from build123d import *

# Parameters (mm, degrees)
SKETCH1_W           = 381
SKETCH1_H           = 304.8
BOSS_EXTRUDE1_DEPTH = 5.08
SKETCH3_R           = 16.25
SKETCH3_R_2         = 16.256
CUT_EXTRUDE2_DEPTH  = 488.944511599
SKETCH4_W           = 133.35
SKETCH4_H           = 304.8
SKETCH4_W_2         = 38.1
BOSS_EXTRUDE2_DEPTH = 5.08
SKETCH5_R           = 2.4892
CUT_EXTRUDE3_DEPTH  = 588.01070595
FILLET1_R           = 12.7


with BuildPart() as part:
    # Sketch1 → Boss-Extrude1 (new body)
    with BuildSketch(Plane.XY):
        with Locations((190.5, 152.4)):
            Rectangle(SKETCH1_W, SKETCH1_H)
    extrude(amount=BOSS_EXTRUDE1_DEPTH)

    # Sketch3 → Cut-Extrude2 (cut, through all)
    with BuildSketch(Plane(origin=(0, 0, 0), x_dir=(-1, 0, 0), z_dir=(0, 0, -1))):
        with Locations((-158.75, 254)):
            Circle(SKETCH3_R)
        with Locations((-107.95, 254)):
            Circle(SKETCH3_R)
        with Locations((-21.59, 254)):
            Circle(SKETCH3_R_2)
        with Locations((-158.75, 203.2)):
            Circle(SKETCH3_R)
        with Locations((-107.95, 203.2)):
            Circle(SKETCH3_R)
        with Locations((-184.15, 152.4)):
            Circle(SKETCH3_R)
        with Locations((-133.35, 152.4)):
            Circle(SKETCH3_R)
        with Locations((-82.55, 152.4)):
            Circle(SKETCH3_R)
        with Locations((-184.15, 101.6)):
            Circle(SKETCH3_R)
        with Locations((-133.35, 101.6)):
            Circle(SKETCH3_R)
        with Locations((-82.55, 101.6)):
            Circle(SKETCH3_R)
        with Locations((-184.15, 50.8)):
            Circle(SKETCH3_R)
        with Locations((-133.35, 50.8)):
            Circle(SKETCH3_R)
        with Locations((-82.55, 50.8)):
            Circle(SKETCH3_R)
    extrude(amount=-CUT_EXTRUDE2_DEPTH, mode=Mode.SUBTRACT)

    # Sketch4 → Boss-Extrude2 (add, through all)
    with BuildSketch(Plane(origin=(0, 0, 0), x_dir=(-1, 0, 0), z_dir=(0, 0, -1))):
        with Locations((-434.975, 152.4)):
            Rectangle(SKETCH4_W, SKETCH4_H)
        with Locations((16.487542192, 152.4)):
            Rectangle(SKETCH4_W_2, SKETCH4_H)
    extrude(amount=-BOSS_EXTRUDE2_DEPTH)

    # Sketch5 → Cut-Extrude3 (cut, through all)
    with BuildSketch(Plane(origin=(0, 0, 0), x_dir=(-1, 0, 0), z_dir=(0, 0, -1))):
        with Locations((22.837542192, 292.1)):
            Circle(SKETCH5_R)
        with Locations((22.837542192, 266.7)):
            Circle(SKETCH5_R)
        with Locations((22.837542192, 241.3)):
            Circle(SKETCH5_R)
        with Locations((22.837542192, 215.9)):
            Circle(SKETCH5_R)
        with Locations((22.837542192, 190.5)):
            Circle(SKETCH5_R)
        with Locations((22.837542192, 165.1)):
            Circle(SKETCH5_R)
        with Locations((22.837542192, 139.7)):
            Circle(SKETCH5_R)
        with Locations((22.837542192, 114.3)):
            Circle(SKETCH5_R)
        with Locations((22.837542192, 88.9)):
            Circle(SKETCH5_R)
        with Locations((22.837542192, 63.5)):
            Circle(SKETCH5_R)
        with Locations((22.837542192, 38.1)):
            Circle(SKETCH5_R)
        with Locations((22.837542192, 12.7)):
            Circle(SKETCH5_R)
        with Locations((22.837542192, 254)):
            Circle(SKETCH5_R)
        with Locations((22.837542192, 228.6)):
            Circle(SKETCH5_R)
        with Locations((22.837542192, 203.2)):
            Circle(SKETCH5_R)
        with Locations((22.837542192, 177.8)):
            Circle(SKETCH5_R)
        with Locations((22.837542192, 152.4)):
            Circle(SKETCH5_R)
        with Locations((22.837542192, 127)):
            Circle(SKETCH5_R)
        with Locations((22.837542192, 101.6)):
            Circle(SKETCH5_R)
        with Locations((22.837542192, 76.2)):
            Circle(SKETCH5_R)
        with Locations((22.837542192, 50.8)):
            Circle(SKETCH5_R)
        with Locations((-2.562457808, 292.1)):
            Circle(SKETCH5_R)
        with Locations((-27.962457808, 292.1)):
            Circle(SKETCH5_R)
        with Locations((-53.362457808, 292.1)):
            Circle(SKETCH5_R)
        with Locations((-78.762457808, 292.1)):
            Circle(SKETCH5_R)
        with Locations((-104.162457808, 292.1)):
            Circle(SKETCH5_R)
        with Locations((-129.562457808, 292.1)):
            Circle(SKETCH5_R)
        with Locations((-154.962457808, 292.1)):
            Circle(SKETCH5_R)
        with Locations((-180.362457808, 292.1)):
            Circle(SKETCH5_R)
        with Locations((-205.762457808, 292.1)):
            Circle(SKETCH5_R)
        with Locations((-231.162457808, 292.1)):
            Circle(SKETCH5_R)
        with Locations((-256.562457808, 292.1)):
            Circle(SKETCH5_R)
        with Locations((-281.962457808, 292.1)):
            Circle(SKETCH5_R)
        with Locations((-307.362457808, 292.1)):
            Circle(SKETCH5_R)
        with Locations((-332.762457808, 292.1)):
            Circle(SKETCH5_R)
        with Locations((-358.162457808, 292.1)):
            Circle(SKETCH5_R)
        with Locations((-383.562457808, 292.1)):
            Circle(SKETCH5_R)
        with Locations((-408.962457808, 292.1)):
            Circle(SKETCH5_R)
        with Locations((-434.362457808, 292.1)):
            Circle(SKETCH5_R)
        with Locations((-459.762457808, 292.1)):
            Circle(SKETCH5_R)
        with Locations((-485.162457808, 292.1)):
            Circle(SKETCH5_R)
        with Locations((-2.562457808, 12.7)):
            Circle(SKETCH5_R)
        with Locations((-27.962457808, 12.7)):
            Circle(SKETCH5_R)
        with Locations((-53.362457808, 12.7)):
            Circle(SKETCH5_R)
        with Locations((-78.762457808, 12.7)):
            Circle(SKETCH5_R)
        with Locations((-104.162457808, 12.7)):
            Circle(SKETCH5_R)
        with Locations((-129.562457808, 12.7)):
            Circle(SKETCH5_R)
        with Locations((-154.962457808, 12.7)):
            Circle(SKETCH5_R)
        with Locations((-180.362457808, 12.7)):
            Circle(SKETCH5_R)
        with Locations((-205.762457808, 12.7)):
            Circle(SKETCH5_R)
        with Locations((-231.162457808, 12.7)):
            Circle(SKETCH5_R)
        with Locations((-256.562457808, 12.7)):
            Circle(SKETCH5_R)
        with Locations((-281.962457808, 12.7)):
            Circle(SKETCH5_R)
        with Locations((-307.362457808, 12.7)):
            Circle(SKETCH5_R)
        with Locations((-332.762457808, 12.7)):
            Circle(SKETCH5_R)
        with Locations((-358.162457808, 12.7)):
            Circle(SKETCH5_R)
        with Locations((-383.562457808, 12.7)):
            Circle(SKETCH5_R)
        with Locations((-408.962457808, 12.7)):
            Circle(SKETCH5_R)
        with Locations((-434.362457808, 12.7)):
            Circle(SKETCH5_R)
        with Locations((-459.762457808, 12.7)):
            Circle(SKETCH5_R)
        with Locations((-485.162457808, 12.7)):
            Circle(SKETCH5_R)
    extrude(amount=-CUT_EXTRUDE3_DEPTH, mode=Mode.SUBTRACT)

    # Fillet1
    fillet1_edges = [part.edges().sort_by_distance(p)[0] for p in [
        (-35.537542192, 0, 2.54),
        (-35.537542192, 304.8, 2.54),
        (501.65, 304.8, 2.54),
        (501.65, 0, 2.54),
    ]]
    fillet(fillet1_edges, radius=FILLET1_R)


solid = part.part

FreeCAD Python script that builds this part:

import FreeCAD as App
import Part
import Sketcher

V = App.Vector
Q = App.Units.Quantity


def edges_at(feature, points):
    """Names of the edges that pass closest to the given points."""
    edges = feature.Shape.Edges
    near = lambda p: min(range(len(edges)), key=lambda i: edges[i].distToShape(Part.Vertex(*p))[0])
    return sorted({f"Edge{near(p) + 1}" for p in points})

doc = App.newDocument("Part")
body = doc.addObject("PartDesign::Body", "Body")

sketch1 = body.newObject("Sketcher::SketchObject", "Sketch")
sketch1.AttachmentSupport = (doc.getObject("XY_Plane"), [""])
sketch1.MapMode = "FlatFace"
sketch1.addGeometry([
    Part.LineSegment(V(0, 304.8, 0), V(0, 0, 0)),
    Part.LineSegment(V(0, 0, 0), V(381, 0, 0)),
    Part.LineSegment(V(381, 0, 0), V(381, 304.8, 0)),
    Part.LineSegment(V(381, 304.8, 0), V(0, 304.8, 0)),
], False)
sketch1.addConstraint([
    Sketcher.Constraint("Coincident", 0, 2, 1, 1),
    Sketcher.Constraint("Coincident", 1, 2, 2, 1),
    Sketcher.Constraint("Coincident", 2, 2, 3, 1),
    Sketcher.Constraint("Coincident", 3, 2, 0, 1),
    Sketcher.Constraint("Vertical", 0),
    Sketcher.Constraint("Horizontal", 1),
    Sketcher.Constraint("Vertical", 2),
    Sketcher.Constraint("Horizontal", 3),
    Sketcher.Constraint("Coincident", 0, 2, -1, 1),
    Sketcher.Constraint("DistanceX", 1, 1, 1, 2, Q("15 in")),
    Sketcher.Constraint("DistanceY", 0, 2, 0, 1, Q("12 in")),
])
pad1 = body.newObject("PartDesign::Pad", "Pad")
pad1.Profile = sketch1
pad1.Length = Q("0.2 in")

sketch2 = body.newObject("Sketcher::SketchObject", "Sketch001")
sketch2.AttachmentSupport = (doc.getObject("XY_Plane"), [""])
sketch2.MapMode = "FlatFace"
sketch2.addGeometry([
    Part.Circle(V(158.75, 254, 0), V(0, 0, 1), 16.25),
    Part.Circle(V(107.95, 254, 0), V(0, 0, 1), 16.25),
    Part.Circle(V(21.59, 254, 0), V(0, 0, 1), 16.256),
    Part.Circle(V(158.75, 203.2, 0), V(0, 0, 1), 16.25),
    Part.Circle(V(107.95, 203.2, 0), V(0, 0, 1), 16.25),
    Part.Circle(V(184.15, 152.4, 0), V(0, 0, 1), 16.25),
    Part.Circle(V(133.35, 152.4, 0), V(0, 0, 1), 16.25),
    Part.Circle(V(82.55, 152.4, 0), V(0, 0, 1), 16.25),
    Part.Circle(V(184.15, 101.6, 0), V(0, 0, 1), 16.25),
    Part.Circle(V(133.35, 101.6, 0), V(0, 0, 1), 16.25),
    Part.Circle(V(82.55, 101.6, 0), V(0, 0, 1), 16.25),
    Part.Circle(V(184.15, 50.8, 0), V(0, 0, 1), 16.25),
    Part.Circle(V(133.35, 50.8, 0), V(0, 0, 1), 16.25),
    Part.Circle(V(82.55, 50.8, 0), V(0, 0, 1), 16.25),
], False)
sketch2.addConstraint([
    Sketcher.Constraint("Equal", 0, 1),
    Sketcher.Constraint("Equal", 1, 3),
    Sketcher.Constraint("Equal", 3, 4),
    Sketcher.Constraint("Equal", 4, 5),
    Sketcher.Constraint("Equal", 5, 6),
    Sketcher.Constraint("Equal", 6, 7),
    Sketcher.Constraint("Equal", 7, 8),
    Sketcher.Constraint("Equal", 8, 9),
    Sketcher.Constraint("Equal", 9, 10),
    Sketcher.Constraint("Equal", 10, 11),
    Sketcher.Constraint("Equal", 11, 12),
    Sketcher.Constraint("Equal", 12, 13),
    Sketcher.Constraint("Horizontal", 0, 3, 1, 3),
    Sketcher.Constraint("Horizontal", 1, 3, 2, 3),
    Sketcher.Constraint("Horizontal", 3, 3, 4, 3),
    Sketcher.Constraint("Horizontal", 5, 3, 6, 3),
    Sketcher.Constraint("Horizontal", 6, 3, 7, 3),
    Sketcher.Constraint("Horizontal", 8, 3, 9, 3),
    Sketcher.Constraint("Horizontal", 9, 3, 10, 3),
    Sketcher.Constraint("Horizontal", 11, 3, 12, 3),
    Sketcher.Constraint("Horizontal", 12, 3, 13, 3),
    Sketcher.Constraint("Vertical", 0, 3, 3, 3),
    Sketcher.Constraint("Vertical", 1, 3, 4, 3),
    Sketcher.Constraint("Vertical", 5, 3, 8, 3),
    Sketcher.Constraint("Vertical", 6, 3, 9, 3),
    Sketcher.Constraint("Vertical", 7, 3, 10, 3),
    Sketcher.Constraint("Vertical", 8, 3, 11, 3),
    Sketcher.Constraint("Vertical", 9, 3, 12, 3),
    Sketcher.Constraint("Vertical", 10, 3, 13, 3),
    Sketcher.Constraint("Diameter", 2, Q("1.28 in")),
    Sketcher.Constraint("DistanceY", -1, 1, 0, 3, Q("10 in")),
    Sketcher.Constraint("DistanceY", -1, 1, 3, 3, Q("8 in")),
    Sketcher.Constraint("DistanceY", -1, 1, 5, 3, Q("6 in")),
    Sketcher.Constraint("DistanceY", -1, 1, 8, 3, Q("4 in")),
    Sketcher.Constraint("DistanceY", -1, 1, 11, 3, Q("2 in")),
    Sketcher.Constraint("DistanceX", 1, 3, 0, 3, Q("2 in")),
    Sketcher.Constraint("DistanceX", 3, 3, 5, 3, Q("1 in")),
    Sketcher.Constraint("DistanceX", 6, 3, 5, 3, Q("2 in")),
    Sketcher.Constraint("DistanceX", 7, 3, 6, 3, Q("2 in")),
    Sketcher.Constraint("DistanceX", 2, 3, 1, 3, Q("3.4 in")),
    Sketcher.Constraint("Diameter", 0, Q("32.5 mm")),
    Sketcher.Constraint("DistanceX", -1, 1, 0, 3, Q("6.25 in")),
])
pocket1 = body.newObject("PartDesign::Pocket", "Pocket")
pocket1.Profile = sketch2
pocket1.Type = "ThroughAll"
pocket1.Reversed = True

sketch3 = body.newObject("Sketcher::SketchObject", "Sketch002")
sketch3.AttachmentSupport = (doc.getObject("XY_Plane"), [""])
sketch3.MapMode = "FlatFace"
sketch3.addGeometry([
    Part.LineSegment(V(501.65, 304.8, 0), V(501.65, 0, 0)),
    Part.LineSegment(V(501.65, 0, 0), V(368.3, 0, 0)),
    Part.LineSegment(V(368.3, 0, 0), V(368.3, 304.8, 0)),
    Part.LineSegment(V(368.3, 304.8, 0), V(501.65, 304.8, 0)),
    Part.LineSegment(V(2.562458, 304.8, 0), V(2.562458, 0, 0)),
    Part.LineSegment(V(2.562458, 0, 0), V(-35.537542, 0, 0)),
    Part.LineSegment(V(-35.537542, 0, 0), V(-35.537542, 304.8, 0)),
    Part.LineSegment(V(-35.537542, 304.8, 0), V(2.562458, 304.8, 0)),
], False)
sketch3.addConstraint([
    Sketcher.Constraint("Coincident", 0, 2, 1, 1),
    Sketcher.Constraint("Coincident", 1, 2, 2, 1),
    Sketcher.Constraint("Coincident", 2, 2, 3, 1),
    Sketcher.Constraint("Coincident", 3, 2, 0, 1),
    Sketcher.Constraint("Coincident", 4, 2, 5, 1),
    Sketcher.Constraint("Coincident", 5, 2, 6, 1),
    Sketcher.Constraint("Coincident", 6, 2, 7, 1),
    Sketcher.Constraint("Coincident", 7, 2, 4, 1),
    Sketcher.Constraint("Vertical", 0),
    Sketcher.Constraint("Horizontal", 1),
    Sketcher.Constraint("Vertical", 2),
    Sketcher.Constraint("Horizontal", 3),
    Sketcher.Constraint("Vertical", 4),
    Sketcher.Constraint("Horizontal", 5),
    Sketcher.Constraint("Vertical", 6),
    Sketcher.Constraint("Horizontal", 7),
    Sketcher.Constraint("PointOnObject", 0, 2, -1),
    Sketcher.Constraint("PointOnObject", 4, 2, -1),
    Sketcher.Constraint("Horizontal", 3, 2, 6, 2),
    Sketcher.Constraint("DistanceY", 0, 2, 0, 1, Q("12 in")),
    Sketcher.Constraint("DistanceX", 5, 2, 5, 1, Q("1.5 in")),
    Sketcher.Constraint("DistanceX", 1, 2, 1, 1, Q("5.25 in")),
    Sketcher.Constraint("DistanceX", -1, 1, 1, 2, Q("14.5 in")),
    Sketcher.Constraint("DistanceX", -1, 1, 4, 2, Q("2.562458 mm")),
])
pad2 = body.newObject("PartDesign::Pad", "Pad001")
pad2.Profile = sketch3
pad2.Type = "UpToLast"

sketch4 = body.newObject("Sketcher::SketchObject", "Sketch003")
sketch4.AttachmentSupport = (doc.getObject("XY_Plane"), [""])
sketch4.MapMode = "FlatFace"
sketch4.addGeometry([
    Part.Circle(V(-22.837542, 292.1, 0), V(0, 0, 1), 2.4892),
    Part.Circle(V(-22.837542, 266.7, 0), V(0, 0, 1), 2.4892),
    Part.Circle(V(-22.837542, 241.3, 0), V(0, 0, 1), 2.4892),
    Part.Circle(V(-22.837542, 215.9, 0), V(0, 0, 1), 2.4892),
    Part.Circle(V(-22.837542, 190.5, 0), V(0, 0, 1), 2.4892),
    Part.Circle(V(-22.837542, 165.1, 0), V(0, 0, 1), 2.4892),
    Part.Circle(V(-22.837542, 139.7, 0), V(0, 0, 1), 2.4892),
    Part.Circle(V(-22.837542, 114.3, 0), V(0, 0, 1), 2.4892),
    Part.Circle(V(-22.837542, 88.9, 0), V(0, 0, 1), 2.4892),
    Part.Circle(V(-22.837542, 63.5, 0), V(0, 0, 1), 2.4892),
    Part.Circle(V(-22.837542, 38.1, 0), V(0, 0, 1), 2.4892),
    Part.Circle(V(-22.837542, 12.7, 0), V(0, 0, 1), 2.4892),
    Part.Circle(V(-22.837542, 254, 0), V(0, 0, 1), 2.4892),
    Part.Circle(V(-22.837542, 228.6, 0), V(0, 0, 1), 2.4892),
    Part.Circle(V(-22.837542, 203.2, 0), V(0, 0, 1), 2.4892),
    Part.Circle(V(-22.837542, 177.8, 0), V(0, 0, 1), 2.4892),
    Part.Circle(V(-22.837542, 152.4, 0), V(0, 0, 1), 2.4892),
    Part.Circle(V(-22.837542, 127, 0), V(0, 0, 1), 2.4892),
    Part.Circle(V(-22.837542, 101.6, 0), V(0, 0, 1), 2.4892),
    Part.Circle(V(-22.837542, 76.2, 0), V(0, 0, 1), 2.4892),
    Part.Circle(V(-22.837542, 50.8, 0), V(0, 0, 1), 2.4892),
    Part.Circle(V(2.562458, 292.1, 0), V(0, 0, 1), 2.4892),
    Part.Circle(V(27.962458, 292.1, 0), V(0, 0, 1), 2.4892),
    Part.Circle(V(53.362458, 292.1, 0), V(0, 0, 1), 2.4892),
    Part.Circle(V(78.762458, 292.1, 0), V(0, 0, 1), 2.4892),
    Part.Circle(V(104.162458, 292.1, 0), V(0, 0, 1), 2.4892),
    Part.Circle(V(129.562458, 292.1, 0), V(0, 0, 1), 2.4892),
    Part.Circle(V(154.962458, 292.1, 0), V(0, 0, 1), 2.4892),
    Part.Circle(V(180.362458, 292.1, 0), V(0, 0, 1), 2.4892),
    Part.Circle(V(205.762458, 292.1, 0), V(0, 0, 1), 2.4892),
    Part.Circle(V(231.162458, 292.1, 0), V(0, 0, 1), 2.4892),
    Part.Circle(V(256.562458, 292.1, 0), V(0, 0, 1), 2.4892),
    Part.Circle(V(281.962458, 292.1, 0), V(0, 0, 1), 2.4892),
    Part.Circle(V(307.362458, 292.1, 0), V(0, 0, 1), 2.4892),
    Part.Circle(V(332.762458, 292.1, 0), V(0, 0, 1), 2.4892),
    Part.Circle(V(358.162458, 292.1, 0), V(0, 0, 1), 2.4892),
    Part.Circle(V(383.562458, 292.1, 0), V(0, 0, 1), 2.4892),
    Part.Circle(V(408.962458, 292.1, 0), V(0, 0, 1), 2.4892),
    Part.Circle(V(434.362458, 292.1, 0), V(0, 0, 1), 2.4892),
    Part.Circle(V(459.762458, 292.1, 0), V(0, 0, 1), 2.4892),
    Part.Circle(V(485.162458, 292.1, 0), V(0, 0, 1), 2.4892),
    Part.Circle(V(2.562458, 12.7, 0), V(0, 0, 1), 2.4892),
    Part.Circle(V(27.962458, 12.7, 0), V(0, 0, 1), 2.4892),
    Part.Circle(V(53.362458, 12.7, 0), V(0, 0, 1), 2.4892),
    Part.Circle(V(78.762458, 12.7, 0), V(0, 0, 1), 2.4892),
    Part.Circle(V(104.162458, 12.7, 0), V(0, 0, 1), 2.4892),
    Part.Circle(V(129.562458, 12.7, 0), V(0, 0, 1), 2.4892),
    Part.Circle(V(154.962458, 12.7, 0), V(0, 0, 1), 2.4892),
    Part.Circle(V(180.362458, 12.7, 0), V(0, 0, 1), 2.4892),
    Part.Circle(V(205.762458, 12.7, 0), V(0, 0, 1), 2.4892),
    Part.Circle(V(231.162458, 12.7, 0), V(0, 0, 1), 2.4892),
    Part.Circle(V(256.562458, 12.7, 0), V(0, 0, 1), 2.4892),
    Part.Circle(V(281.962458, 12.7, 0), V(0, 0, 1), 2.4892),
    Part.Circle(V(307.362458, 12.7, 0), V(0, 0, 1), 2.4892),
    Part.Circle(V(332.762458, 12.7, 0), V(0, 0, 1), 2.4892),
    Part.Circle(V(358.162458, 12.7, 0), V(0, 0, 1), 2.4892),
    Part.Circle(V(383.562458, 12.7, 0), V(0, 0, 1), 2.4892),
    Part.Circle(V(408.962458, 12.7, 0), V(0, 0, 1), 2.4892),
    Part.Circle(V(434.362458, 12.7, 0), V(0, 0, 1), 2.4892),
    Part.Circle(V(459.762458, 12.7, 0), V(0, 0, 1), 2.4892),
    Part.Circle(V(485.162458, 12.7, 0), V(0, 0, 1), 2.4892),
], False)
sketch4.addConstraint([
    Sketcher.Constraint("Equal", 0, 1),
    Sketcher.Constraint("Equal", 1, 2),
    Sketcher.Constraint("Equal", 2, 3),
    Sketcher.Constraint("Equal", 3, 4),
    Sketcher.Constraint("Equal", 4, 5),
    Sketcher.Constraint("Equal", 5, 6),
    Sketcher.Constraint("Equal", 6, 7),
    Sketcher.Constraint("Equal", 7, 8),
    Sketcher.Constraint("Equal", 8, 9),
    Sketcher.Constraint("Equal", 9, 10),
    Sketcher.Constraint("Equal", 10, 11),
    Sketcher.Constraint("Equal", 11, 12),
    Sketcher.Constraint("Equal", 12, 13),
    Sketcher.Constraint("Equal", 13, 14),
    Sketcher.Constraint("Equal", 14, 15),
    Sketcher.Constraint("Equal", 15, 16),
    Sketcher.Constraint("Equal", 16, 17),
    Sketcher.Constraint("Equal", 17, 18),
    Sketcher.Constraint("Equal", 18, 19),
    Sketcher.Constraint("Equal", 19, 20),
    Sketcher.Constraint("Equal", 20, 21),
    Sketcher.Constraint("Equal", 21, 22),
    Sketcher.Constraint("Equal", 22, 23),
    Sketcher.Constraint("Equal", 23, 24),
    Sketcher.Constraint("Equal", 24, 25),
    Sketcher.Constraint("Equal", 25, 26),
    Sketcher.Constraint("Equal", 26, 27),
    Sketcher.Constraint("Equal", 27, 28),
    Sketcher.Constraint("Equal", 28, 29),
    Sketcher.Constraint("Equal", 29, 30),
    Sketcher.Constraint("Equal", 30, 31),
    Sketcher.Constraint("Equal", 31, 32),
    Sketcher.Constraint("Equal", 32, 33),
    Sketcher.Constraint("Equal", 33, 34),
    Sketcher.Constraint("Equal", 34, 35),
    Sketcher.Constraint("Equal", 35, 36),
    Sketcher.Constraint("Equal", 36, 37),
    Sketcher.Constraint("Equal", 37, 38),
    Sketcher.Constraint("Equal", 38, 39),
    Sketcher.Constraint("Equal", 39, 40),
    Sketcher.Constraint("Equal", 40, 41),
    Sketcher.Constraint("Equal", 41, 42),
    Sketcher.Constraint("Equal", 42, 43),
    Sketcher.Constraint("Equal", 43, 44),
    Sketcher.Constraint("Equal", 44, 45),
    Sketcher.Constraint("Equal", 45, 46),
    Sketcher.Constraint("Equal", 46, 47),
    Sketcher.Constraint("Equal", 47, 48),
    Sketcher.Constraint("Equal", 48, 49),
    Sketcher.Constraint("Equal", 49, 50),
    Sketcher.Constraint("Equal", 50, 51),
    Sketcher.Constraint("Equal", 51, 52),
    Sketcher.Constraint("Equal", 52, 53),
    Sketcher.Constraint("Equal", 53, 54),
    Sketcher.Constraint("Equal", 54, 55),
    Sketcher.Constraint("Equal", 55, 56),
    Sketcher.Constraint("Equal", 56, 57),
    Sketcher.Constraint("Equal", 57, 58),
    Sketcher.Constraint("Equal", 58, 59),
    Sketcher.Constraint("Equal", 59, 60),
    Sketcher.Constraint("Horizontal", 0, 3, 21, 3),
    Sketcher.Constraint("Horizontal", 21, 3, 22, 3),
    Sketcher.Constraint("Horizontal", 22, 3, 23, 3),
    Sketcher.Constraint("Horizontal", 23, 3, 24, 3),
    Sketcher.Constraint("Horizontal", 24, 3, 25, 3),
    Sketcher.Constraint("Horizontal", 25, 3, 26, 3),
    Sketcher.Constraint("Horizontal", 26, 3, 27, 3),
    Sketcher.Constraint("Horizontal", 27, 3, 28, 3),
    Sketcher.Constraint("Horizontal", 28, 3, 29, 3),
    Sketcher.Constraint("Horizontal", 29, 3, 30, 3),
    Sketcher.Constraint("Horizontal", 30, 3, 31, 3),
    Sketcher.Constraint("Horizontal", 31, 3, 32, 3),
    Sketcher.Constraint("Horizontal", 32, 3, 33, 3),
    Sketcher.Constraint("Horizontal", 33, 3, 34, 3),
    Sketcher.Constraint("Horizontal", 34, 3, 35, 3),
    Sketcher.Constraint("Horizontal", 35, 3, 36, 3),
    Sketcher.Constraint("Horizontal", 36, 3, 37, 3),
    Sketcher.Constraint("Horizontal", 37, 3, 38, 3),
    Sketcher.Constraint("Horizontal", 38, 3, 39, 3),
    Sketcher.Constraint("Horizontal", 39, 3, 40, 3),
    Sketcher.Constraint("Horizontal", 11, 3, 41, 3),
    Sketcher.Constraint("Horizontal", 41, 3, 42, 3),
    Sketcher.Constraint("Horizontal", 42, 3, 43, 3),
    Sketcher.Constraint("Horizontal", 43, 3, 44, 3),
    Sketcher.Constraint("Horizontal", 44, 3, 45, 3),
    Sketcher.Constraint("Horizontal", 45, 3, 46, 3),
    Sketcher.Constraint("Horizontal", 46, 3, 47, 3),
    Sketcher.Constraint("Horizontal", 47, 3, 48, 3),
    Sketcher.Constraint("Horizontal", 48, 3, 49, 3),
    Sketcher.Constraint("Horizontal", 49, 3, 50, 3),
    Sketcher.Constraint("Horizontal", 50, 3, 51, 3),
    Sketcher.Constraint("Horizontal", 51, 3, 52, 3),
    Sketcher.Constraint("Horizontal", 52, 3, 53, 3),
    Sketcher.Constraint("Horizontal", 53, 3, 54, 3),
    Sketcher.Constraint("Horizontal", 54, 3, 55, 3),
    Sketcher.Constraint("Horizontal", 55, 3, 56, 3),
    Sketcher.Constraint("Horizontal", 56, 3, 57, 3),
    Sketcher.Constraint("Horizontal", 57, 3, 58, 3),
    Sketcher.Constraint("Horizontal", 58, 3, 59, 3),
    Sketcher.Constraint("Horizontal", 59, 3, 60, 3),
    Sketcher.Constraint("Vertical", 0, 3, 1, 3),
    Sketcher.Constraint("Vertical", 1, 3, 2, 3),
    Sketcher.Constraint("Vertical", 2, 3, 3, 3),
    Sketcher.Constraint("Vertical", 3, 3, 4, 3),
    Sketcher.Constraint("Vertical", 4, 3, 5, 3),
    Sketcher.Constraint("Vertical", 5, 3, 6, 3),
    Sketcher.Constraint("Vertical", 6, 3, 7, 3),
    Sketcher.Constraint("Vertical", 7, 3, 8, 3),
    Sketcher.Constraint("Vertical", 8, 3, 9, 3),
    Sketcher.Constraint("Vertical", 9, 3, 10, 3),
    Sketcher.Constraint("Vertical", 10, 3, 11, 3),
    Sketcher.Constraint("Vertical", 11, 3, 12, 3),
    Sketcher.Constraint("Vertical", 12, 3, 13, 3),
    Sketcher.Constraint("Vertical", 13, 3, 14, 3),
    Sketcher.Constraint("Vertical", 14, 3, 15, 3),
    Sketcher.Constraint("Vertical", 15, 3, 16, 3),
    Sketcher.Constraint("Vertical", 16, 3, 17, 3),
    Sketcher.Constraint("Vertical", 17, 3, 18, 3),
    Sketcher.Constraint("Vertical", 18, 3, 19, 3),
    Sketcher.Constraint("Vertical", 19, 3, 20, 3),
    Sketcher.Constraint("Vertical", 21, 3, 41, 3),
    Sketcher.Constraint("Vertical", 22, 3, 42, 3),
    Sketcher.Constraint("Vertical", 23, 3, 43, 3),
    Sketcher.Constraint("Vertical", 24, 3, 44, 3),
    Sketcher.Constraint("Vertical", 25, 3, 45, 3),
    Sketcher.Constraint("Vertical", 26, 3, 46, 3),
    Sketcher.Constraint("Vertical", 27, 3, 47, 3),
    Sketcher.Constraint("Vertical", 28, 3, 48, 3),
    Sketcher.Constraint("Vertical", 29, 3, 49, 3),
    Sketcher.Constraint("Vertical", 30, 3, 50, 3),
    Sketcher.Constraint("Vertical", 31, 3, 51, 3),
    Sketcher.Constraint("Vertical", 32, 3, 52, 3),
    Sketcher.Constraint("Vertical", 33, 3, 53, 3),
    Sketcher.Constraint("Vertical", 34, 3, 54, 3),
    Sketcher.Constraint("Vertical", 35, 3, 55, 3),
    Sketcher.Constraint("Vertical", 36, 3, 56, 3),
    Sketcher.Constraint("Vertical", 37, 3, 57, 3),
    Sketcher.Constraint("Vertical", 38, 3, 58, 3),
    Sketcher.Constraint("Vertical", 39, 3, 59, 3),
    Sketcher.Constraint("Vertical", 40, 3, 60, 3),
    Sketcher.Constraint("Diameter", 0, Q("0.196 in")),
    Sketcher.Constraint("DistanceY", -1, 1, 12, 3, Q("10 in")),
    Sketcher.Constraint("DistanceY", -1, 1, 13, 3, Q("9 in")),
    Sketcher.Constraint("DistanceY", -1, 1, 14, 3, Q("8 in")),
    Sketcher.Constraint("DistanceY", -1, 1, 15, 3, Q("7 in")),
    Sketcher.Constraint("DistanceY", -1, 1, 16, 3, Q("6 in")),
    Sketcher.Constraint("DistanceY", -1, 1, 17, 3, Q("5 in")),
    Sketcher.Constraint("DistanceY", -1, 1, 18, 3, Q("4 in")),
    Sketcher.Constraint("DistanceY", -1, 1, 19, 3, Q("3 in")),
    Sketcher.Constraint("DistanceY", -1, 1, 20, 3, Q("2 in")),
    Sketcher.Constraint("DistanceY", -1, 1, 0, 3, Q("11.5 in")),
    Sketcher.Constraint("DistanceY", -1, 1, 1, 3, Q("10.5 in")),
    Sketcher.Constraint("DistanceY", -1, 1, 2, 3, Q("9.5 in")),
    Sketcher.Constraint("DistanceY", -1, 1, 3, 3, Q("8.5 in")),
    Sketcher.Constraint("DistanceY", -1, 1, 4, 3, Q("7.5 in")),
    Sketcher.Constraint("DistanceY", -1, 1, 5, 3, Q("6.5 in")),
    Sketcher.Constraint("DistanceY", -1, 1, 6, 3, Q("5.5 in")),
    Sketcher.Constraint("DistanceY", -1, 1, 7, 3, Q("4.5 in")),
    Sketcher.Constraint("DistanceY", -1, 1, 8, 3, Q("3.5 in")),
    Sketcher.Constraint("DistanceY", -1, 1, 9, 3, Q("2.5 in")),
    Sketcher.Constraint("DistanceY", -1, 1, 10, 3, Q("1.5 in")),
    Sketcher.Constraint("DistanceY", -1, 1, 11, 3, Q("0.5 in")),
    Sketcher.Constraint("DistanceX", 0, 3, -1, 1, Q("22.837542 mm")),
    Sketcher.Constraint("DistanceX", -1, 1, 21, 3, Q("2.562458 mm")),
    Sketcher.Constraint("DistanceX", -1, 1, 22, 3, Q("27.962458 mm")),
    Sketcher.Constraint("DistanceX", -1, 1, 23, 3, Q("53.362458 mm")),
    Sketcher.Constraint("DistanceX", -1, 1, 24, 3, Q("78.762458 mm")),
    Sketcher.Constraint("DistanceX", -1, 1, 25, 3, Q("104.162458 mm")),
    Sketcher.Constraint("DistanceX", -1, 1, 26, 3, Q("129.562458 mm")),
    Sketcher.Constraint("DistanceX", -1, 1, 27, 3, Q("154.962458 mm")),
    Sketcher.Constraint("DistanceX", -1, 1, 28, 3, Q("180.362458 mm")),
    Sketcher.Constraint("DistanceX", -1, 1, 29, 3, Q("205.762458 mm")),
    Sketcher.Constraint("DistanceX", -1, 1, 30, 3, Q("231.162458 mm")),
    Sketcher.Constraint("DistanceX", -1, 1, 31, 3, Q("256.562458 mm")),
    Sketcher.Constraint("DistanceX", -1, 1, 32, 3, Q("281.962458 mm")),
    Sketcher.Constraint("DistanceX", -1, 1, 33, 3, Q("307.362458 mm")),
    Sketcher.Constraint("DistanceX", -1, 1, 34, 3, Q("332.762458 mm")),
    Sketcher.Constraint("DistanceX", -1, 1, 35, 3, Q("358.162458 mm")),
    Sketcher.Constraint("DistanceX", -1, 1, 36, 3, Q("383.562458 mm")),
    Sketcher.Constraint("DistanceX", -1, 1, 37, 3, Q("408.962458 mm")),
    Sketcher.Constraint("DistanceX", -1, 1, 38, 3, Q("434.362458 mm")),
    Sketcher.Constraint("DistanceX", -1, 1, 39, 3, Q("459.762458 mm")),
    Sketcher.Constraint("DistanceX", -1, 1, 40, 3, Q("485.162458 mm")),
])
pocket2 = body.newObject("PartDesign::Pocket", "Pocket001")
pocket2.Profile = sketch4
pocket2.Type = "ThroughAll"
pocket2.Reversed = True
doc.recompute()

fillet = body.newObject("PartDesign::Fillet", "Fillet")
fillet.Base = (pocket2, edges_at(pocket2, [
    (-35.538, 0, 2.54),
    (-35.538, 304.8, 2.54),
    (501.65, 304.8, 2.54),
    (501.65, 0, 2.54),
]))
fillet.Radius = Q("0.5 in")

doc.recompute()
